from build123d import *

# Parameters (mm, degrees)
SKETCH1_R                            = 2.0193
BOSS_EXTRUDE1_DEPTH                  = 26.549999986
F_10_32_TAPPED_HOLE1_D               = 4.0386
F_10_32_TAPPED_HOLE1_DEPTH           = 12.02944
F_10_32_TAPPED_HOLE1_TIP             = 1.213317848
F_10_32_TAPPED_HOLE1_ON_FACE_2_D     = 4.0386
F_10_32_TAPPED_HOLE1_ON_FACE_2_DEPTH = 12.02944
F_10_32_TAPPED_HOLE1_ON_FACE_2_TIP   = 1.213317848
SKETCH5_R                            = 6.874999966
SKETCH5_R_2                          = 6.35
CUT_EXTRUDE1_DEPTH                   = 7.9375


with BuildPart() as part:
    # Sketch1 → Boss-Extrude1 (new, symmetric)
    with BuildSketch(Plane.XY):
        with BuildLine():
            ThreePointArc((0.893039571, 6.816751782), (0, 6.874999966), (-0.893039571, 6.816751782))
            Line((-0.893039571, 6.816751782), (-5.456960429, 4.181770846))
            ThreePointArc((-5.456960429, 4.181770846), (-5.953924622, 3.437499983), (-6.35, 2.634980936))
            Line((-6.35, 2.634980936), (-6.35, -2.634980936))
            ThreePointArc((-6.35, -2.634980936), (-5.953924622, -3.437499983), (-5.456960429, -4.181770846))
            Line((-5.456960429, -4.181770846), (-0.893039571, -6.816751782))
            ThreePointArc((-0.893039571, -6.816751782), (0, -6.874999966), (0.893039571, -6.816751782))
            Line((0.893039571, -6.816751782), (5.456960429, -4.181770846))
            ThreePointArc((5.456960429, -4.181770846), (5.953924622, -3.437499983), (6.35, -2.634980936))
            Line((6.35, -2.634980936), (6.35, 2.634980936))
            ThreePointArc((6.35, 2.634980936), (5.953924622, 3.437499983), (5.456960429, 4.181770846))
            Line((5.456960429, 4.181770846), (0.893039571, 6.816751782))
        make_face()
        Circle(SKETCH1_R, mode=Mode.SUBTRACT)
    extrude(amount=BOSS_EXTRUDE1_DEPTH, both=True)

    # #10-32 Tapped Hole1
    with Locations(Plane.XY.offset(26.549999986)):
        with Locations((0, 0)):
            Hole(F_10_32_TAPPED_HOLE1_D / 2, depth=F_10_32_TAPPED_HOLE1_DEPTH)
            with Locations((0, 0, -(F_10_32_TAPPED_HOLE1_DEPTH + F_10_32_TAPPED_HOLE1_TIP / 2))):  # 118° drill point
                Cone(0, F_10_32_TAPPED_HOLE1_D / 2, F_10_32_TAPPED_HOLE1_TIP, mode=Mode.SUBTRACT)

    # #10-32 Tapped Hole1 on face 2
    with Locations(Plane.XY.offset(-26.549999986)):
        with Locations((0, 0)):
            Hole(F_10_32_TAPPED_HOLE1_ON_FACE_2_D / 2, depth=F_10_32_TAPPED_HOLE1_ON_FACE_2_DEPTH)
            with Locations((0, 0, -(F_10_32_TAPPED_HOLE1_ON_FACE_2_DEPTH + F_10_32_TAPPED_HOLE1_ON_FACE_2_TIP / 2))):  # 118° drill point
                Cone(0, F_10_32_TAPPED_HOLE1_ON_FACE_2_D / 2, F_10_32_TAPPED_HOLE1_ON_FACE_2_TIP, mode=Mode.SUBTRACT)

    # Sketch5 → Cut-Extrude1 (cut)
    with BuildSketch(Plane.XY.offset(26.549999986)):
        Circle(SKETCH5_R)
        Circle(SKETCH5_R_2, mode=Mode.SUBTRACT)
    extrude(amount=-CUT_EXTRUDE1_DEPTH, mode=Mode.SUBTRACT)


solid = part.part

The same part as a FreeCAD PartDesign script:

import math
import FreeCAD as App
import Part
import Sketcher
Q = App.Units.Quantity

doc = App.newDocument("Part")
params = doc.addObject("Spreadsheet::Sheet", "Params")
for row, (alias, value) in enumerate([
    ("sketch1_diameter", "0.159 in"),
    ("pad1_length", "53.1 mm"),
    ("sketch2_diameter", "0.159 in"),
    ("hole_diameter", "0.159 in"),
    ("hole_depth", "0.4736 in"),
    ("sketch3_diameter", "0.159 in"),
    ("hole2_diameter", "0.159 in"),
    ("hole2_depth", "0.4736 in"),
    ("sketch4_diameter", "0.5 in"),
    ("pocket1_length", "0.3125 in"),
], start=1):
    params.set(f"A{row}", alias)
    params.set(f"B{row}", "=" + value)
    params.setAlias(f"B{row}", alias)

body = doc.addObject("PartDesign::Body", "Body")

# Sketch on XY plane
sketch1 = body.newObject("Sketcher::SketchObject", "Sketch")
sketch1.AttachmentSupport = (doc.getObject("XY_Plane"), [""])
sketch1.MapMode = "FlatFace"
sketch1.addGeometry(Part.ArcOfCircle(Part.Circle(App.Vector(0, 0, 0), App.Vector(0, 0, 1), 6.9), math.radians(82.54), math.radians(97.46)), False)
sketch1.addGeometry(Part.LineSegment(App.Vector(-0.9, 6.8, 0), App.Vector(-5.5, 4.2, 0)), False)
sketch1.addGeometry(Part.ArcOfCircle(Part.Circle(App.Vector(0, 0, 0), App.Vector(0, 0, 1), 6.9), math.radians(142.54), math.radians(157.46)), False)
sketch1.addGeometry(Part.LineSegment(App.Vector(-6.3, 2.6, 0), App.Vector(-6.3, -2.6, 0)), False)
sketch1.addGeometry(Part.ArcOfCircle(Part.Circle(App.Vector(0, 0, 0), App.Vector(0, 0, 1), 6.9), math.radians(-157.46), math.radians(-142.54)), False)
sketch1.addGeometry(Part.LineSegment(App.Vector(-5.5, -4.2, 0), App.Vector(-0.9, -6.8, 0)), False)
sketch1.addGeometry(Part.ArcOfCircle(Part.Circle(App.Vector(0, 0, 0), App.Vector(0, 0, 1), 6.9), math.radians(-97.46), math.radians(-82.54)), False)
sketch1.addGeometry(Part.LineSegment(App.Vector(0.9, -6.8, 0), App.Vector(5.5, -4.2, 0)), False)
sketch1.addGeometry(Part.ArcOfCircle(Part.Circle(App.Vector(0, 0, 0), App.Vector(0, 0, 1), 6.9), math.radians(-37.46), math.radians(-22.54)), False)
sketch1.addGeometry(Part.LineSegment(App.Vector(6.3, -2.6, 0), App.Vector(6.3, 2.6, 0)), False)
sketch1.addGeometry(Part.ArcOfCircle(Part.Circle(App.Vector(0, 0, 0), App.Vector(0, 0, 1), 6.9), math.radians(22.54), math.radians(37.46)), False)
sketch1.addGeometry(Part.LineSegment(App.Vector(5.5, 4.2, 0), App.Vector(0.9, 6.8, 0)), False)
sketch1.addGeometry(Part.Circle(App.Vector(0, 0, 0), App.Vector(0, 0, 1), 2), False)
sketch1.addConstraint(Sketcher.Constraint("Coincident", 0, 2, 1, 1))
sketch1.addConstraint(Sketcher.Constraint("Coincident", 1, 2, 2, 1))
sketch1.addConstraint(Sketcher.Constraint("Coincident", 2, 2, 3, 1))
sketch1.addConstraint(Sketcher.Constraint("Coincident", 3, 2, 4, 1))
sketch1.addConstraint(Sketcher.Constraint("Coincident", 4, 2, 5, 1))
sketch1.addConstraint(Sketcher.Constraint("Coincident", 5, 2, 6, 1))
sketch1.addConstraint(Sketcher.Constraint("Coincident", 6, 2, 7, 1))
sketch1.addConstraint(Sketcher.Constraint("Coincident", 7, 2, 8, 1))
sketch1.addConstraint(Sketcher.Constraint("Coincident", 8, 2, 9, 1))
sketch1.addConstraint(Sketcher.Constraint("Coincident", 9, 2, 10, 1))
sketch1.addConstraint(Sketcher.Constraint("Coincident", 10, 2, 11, 1))
sketch1.addConstraint(Sketcher.Constraint("Coincident", 11, 2, 0, 1))
sketch1.addConstraint(Sketcher.Constraint("Vertical", 3))
sketch1.addConstraint(Sketcher.Constraint("Vertical", 9))
sketch1.addConstraint(Sketcher.Constraint("Coincident", 0, 3, -1, 1))
sketch1.addConstraint(Sketcher.Constraint("Coincident", 2, 3, -1, 1))
sketch1.addConstraint(Sketcher.Constraint("Coincident", 4, 3, -1, 1))
sketch1.addConstraint(Sketcher.Constraint("Coincident", 6, 3, -1, 1))
sketch1.addConstraint(Sketcher.Constraint("Coincident", 8, 3, -1, 1))
sketch1.addConstraint(Sketcher.Constraint("Coincident", 10, 3, -1, 1))
sketch1.addConstraint(Sketcher.Constraint("Coincident", 12, 3, -1, 1))
sketch1.addConstraint(Sketcher.Constraint("Equal", 0, 2))
sketch1.addConstraint(Sketcher.Constraint("Equal", 2, 4))
sketch1.addConstraint(Sketcher.Constraint("Equal", 4, 6))
sketch1.addConstraint(Sketcher.Constraint("Equal", 6, 8))
sketch1.addConstraint(Sketcher.Constraint("Equal", 8, 10))
sketch1.addConstraint(Sketcher.Constraint("Parallel", 1, 7))
sketch1.addConstraint(Sketcher.Constraint("Parallel", 5, 11))
sketch1.addConstraint(Sketcher.Constraint("Horizontal", 5, 2, 6, 2))
sketch1.addConstraint(Sketcher.Constraint("Horizontal", 4, 2, 7, 2))
sketch1.addConstraint(Sketcher.Constraint("Horizontal", 3, 2, 8, 2))
sketch1.addConstraint(Sketcher.Constraint("Horizontal", 1, 2, 10, 2))
sketch1.addConstraint(Sketcher.Constraint("Vertical", 1, 2, 4, 2))
sketch1.addConstraint(Sketcher.Constraint("Diameter", 12, Q("0.159 in")))
sketch1.addConstraint(Sketcher.Constraint("Angle", 1, Q("-150 deg")))
sketch1.addConstraint(Sketcher.Constraint("DistanceX", 2, 2, -1, 1, Q("0.25 in")))
sketch1.addConstraint(Sketcher.Constraint("Radius", 0, 6.875))
sketch1.addConstraint(Sketcher.Constraint("DistanceX", 0, 2, 10, 2, Q("0.25 in")))
sketch1.setExpression("Constraints[33]", "Params.sketch1_diameter")
pad1 = body.newObject("PartDesign::Pad", "Pad")
pad1.Profile = sketch1
pad1.setExpression("Length", "Params.pad1_length")
pad1.Midplane = True

# Sketch on XY plane
sketch2 = body.newObject("Sketcher::SketchObject", "Sketch001")
sketch2.AttachmentSupport = (doc.getObject("XY_Plane"), [""])
sketch2.MapMode = "FlatFace"
sketch2.AttachmentOffset = App.Placement(App.Vector(0, 0, 26.55), App.Rotation())
sketch2.addGeometry(Part.Circle(App.Vector(0, 0, 0), App.Vector(0, 0, 1), 2), False)
sketch2.addConstraint(Sketcher.Constraint("Coincident", 0, 3, -1, 1))
sketch2.addConstraint(Sketcher.Constraint("Diameter", 0, Q("0.159 in")))
sketch2.setExpression("Constraints[1]", "Params.sketch2_diameter")
doc.recompute()
hole = body.newObject("PartDesign::Hole", "Hole")
hole.Profile = sketch2
hole.ThreadType = "None"
hole.setExpression("Diameter", "Params.hole_diameter")
hole.DepthType = "Dimension"
hole.setExpression("Depth", "Params.hole_depth")
hole.DrillPoint = "Angled"
hole.DrillPointAngle = 118

# Sketch on XY plane
sketch3 = body.newObject("Sketcher::SketchObject", "Sketch002")
sketch3.AttachmentSupport = (doc.getObject("XY_Plane"), [""])
sketch3.MapMode = "FlatFace"
sketch3.AttachmentOffset = App.Placement(App.Vector(0, 0, -26.55), App.Rotation())
sketch3.addGeometry(Part.Circle(App.Vector(0, 0, 0), App.Vector(0, 0, 1), 2), False)
sketch3.addConstraint(Sketcher.Constraint("Coincident", 0, 3, -1, 1))
sketch3.addConstraint(Sketcher.Constraint("Diameter", 0, Q("0.159 in")))
sketch3.setExpression("Constraints[1]", "Params.sketch3_diameter")
doc.recompute()
hole2 = body.newObject("PartDesign::Hole", "Hole001")
hole2.Profile = sketch3
hole2.ThreadType = "None"
hole2.setExpression("Diameter", "Params.hole2_diameter")
hole2.DepthType = "Dimension"
hole2.setExpression("Depth", "Params.hole2_depth")
hole2.DrillPoint = "Angled"
hole2.DrillPointAngle = 118

# Sketch on XY plane
sketch4 = body.newObject("Sketcher::SketchObject", "Sketch003")
sketch4.AttachmentSupport = (doc.getObject("XY_Plane"), [""])
sketch4.MapMode = "FlatFace"
sketch4.AttachmentOffset = App.Placement(App.Vector(0, 0, 26.55), App.Rotation())
sketch4.addGeometry(Part.Circle(App.Vector(0, 0, 0), App.Vector(0, 0, 1), 7), False)
sketch4.addGeometry(Part.Circle(App.Vector(0, 0, 0), App.Vector(0, 0, 1), 6), False)
sketch4.addConstraint(Sketcher.Constraint("Coincident", 0, 3, -1, 1))
sketch4.addConstraint(Sketcher.Constraint("Coincident", 1, 3, -1, 1))
sketch4.addConstraint(Sketcher.Constraint("Diameter", 1, Q("0.5 in")))
sketch4.addConstraint(Sketcher.Constraint("Diameter", 0, 13.75))
sketch4.setExpression("Constraints[2]", "Params.sketch4_diameter")
pocket1 = body.newObject("PartDesign::Pocket", "Pocket")
pocket1.Profile = sketch4
pocket1.setExpression("Length", "Params.pocket1_length")

doc.recompute()
